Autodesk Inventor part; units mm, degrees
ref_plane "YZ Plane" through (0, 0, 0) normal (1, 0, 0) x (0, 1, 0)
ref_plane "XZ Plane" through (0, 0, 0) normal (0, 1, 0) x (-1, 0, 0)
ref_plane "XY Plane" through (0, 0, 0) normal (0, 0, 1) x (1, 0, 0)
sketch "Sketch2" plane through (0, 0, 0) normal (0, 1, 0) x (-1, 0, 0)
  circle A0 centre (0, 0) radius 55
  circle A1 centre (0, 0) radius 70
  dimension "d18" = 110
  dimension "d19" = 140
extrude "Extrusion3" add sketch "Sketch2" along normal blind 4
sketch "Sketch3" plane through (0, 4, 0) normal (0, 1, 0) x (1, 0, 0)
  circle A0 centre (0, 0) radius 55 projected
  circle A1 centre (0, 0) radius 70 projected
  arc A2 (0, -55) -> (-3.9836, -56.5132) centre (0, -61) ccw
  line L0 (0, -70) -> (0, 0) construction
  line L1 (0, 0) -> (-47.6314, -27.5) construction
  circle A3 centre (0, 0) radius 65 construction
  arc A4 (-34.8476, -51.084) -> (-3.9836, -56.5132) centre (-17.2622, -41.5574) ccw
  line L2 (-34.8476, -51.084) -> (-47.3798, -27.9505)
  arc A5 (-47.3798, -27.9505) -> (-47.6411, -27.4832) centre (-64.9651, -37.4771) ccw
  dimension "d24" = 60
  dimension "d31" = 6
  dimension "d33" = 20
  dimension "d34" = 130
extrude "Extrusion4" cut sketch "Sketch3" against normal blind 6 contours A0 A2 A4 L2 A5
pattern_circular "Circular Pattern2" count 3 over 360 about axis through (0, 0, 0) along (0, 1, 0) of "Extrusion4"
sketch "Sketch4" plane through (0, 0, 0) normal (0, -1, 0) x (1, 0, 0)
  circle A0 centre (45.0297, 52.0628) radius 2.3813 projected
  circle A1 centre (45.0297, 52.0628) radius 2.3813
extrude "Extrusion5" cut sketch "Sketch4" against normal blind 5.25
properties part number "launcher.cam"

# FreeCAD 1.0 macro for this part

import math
import FreeCAD as App
import Part
import Sketcher

doc = App.newDocument("Part")
body = doc.addObject("PartDesign::Body", "Body")

# Sketch on XZ plane
sketch1 = doc.addObject("Sketcher::SketchObject", "Sketch")
body.addObject(sketch1)
sketch1.AttachmentSupport = (doc.XZ_Plane, [""])
sketch1.MapMode = "FlatFace"
sketch1.addGeometry(Part.Circle(App.Vector(0, 0, 0), App.Vector(0, 0, 1), 70), False)
sketch1.addGeometry(Part.Circle(App.Vector(0, 0, 0), App.Vector(0, 0, 1), 55), False)
sketch1.addConstraint(Sketcher.Constraint("Coincident", 0, 3, -1, 1))
sketch1.addConstraint(Sketcher.Constraint("Coincident", 1, 3, -1, 1))
sketch1.addConstraint(Sketcher.Constraint("Diameter", 0, 140.0))
sketch1.addConstraint(Sketcher.Constraint("Diameter", 1, 110.0))
pad1 = doc.addObject("PartDesign::Pad", "Pad")
body.addObject(pad1)
pad1.Profile = sketch1
pad1.Length = 4
pad1.Reversed = True

# Sketch on XZ plane
sketch2 = doc.addObject("Sketcher::SketchObject", "Sketch001")
body.addObject(sketch2)
sketch2.AttachmentSupport = (doc.XZ_Plane, [""])
sketch2.MapMode = "FlatFace"
sketch2.AttachmentOffset = App.Placement(App.Vector(0, 0, -4), App.Rotation())
sketch2.addGeometry(Part.ArcOfCircle(Part.Circle(App.Vector(0, 0, 0), App.Vector(0, 0, 1), 55), math.radians(90), math.radians(150)), False)
sketch2.addGeometry(Part.ArcOfCircle(Part.Circle(App.Vector(-65, 37.5, 0), App.Vector(0, 0, 1), 20), math.radians(-29.98), math.radians(-28.45)), False)
sketch2.addGeometry(Part.LineSegment(App.Vector(-47.4, 28, 0), App.Vector(-34.8, 51.1, 0)), False)
sketch2.addGeometry(Part.ArcOfCircle(Part.Circle(App.Vector(-17.3, 41.6, 0), App.Vector(0, 0, 1), 20), math.radians(48), math.radians(152)), False)
sketch2.addGeometry(Part.ArcOfCircle(Part.Circle(App.Vector(0, 61, 0), App.Vector(0, 0, 1), 6), math.radians(-132), math.radians(-90)), False)
sketch2.addConstraint(Sketcher.Constraint("Tangent", 0, 2, 1, 1))
sketch2.addConstraint(Sketcher.Constraint("Tangent", 1, 2, 2, 1))
sketch2.addConstraint(Sketcher.Constraint("Tangent", 2, 2, 3, 2))
sketch2.addConstraint(Sketcher.Constraint("Tangent", 3, 1, 4, 1))
sketch2.addConstraint(Sketcher.Constraint("Tangent", 4, 2, 0, 1))
sketch2.addConstraint(Sketcher.Constraint("Coincident", 0, 3, -1, 1))
sketch2.addConstraint(Sketcher.Constraint("PointOnObject", 4, 3, -2))
sketch2.addConstraint(Sketcher.Constraint("Radius", 3, 20.0))
sketch2.addConstraint(Sketcher.Constraint("Radius", 4, 6.0))
sketch2.addConstraint(Sketcher.Constraint("Radius", 0, 55.0))
sketch2.addConstraint(Sketcher.Constraint("Radius", 1, 20.018))
sketch2.addConstraint(Sketcher.Constraint("Distance", 2, 26.31))
sketch2.addConstraint(Sketcher.Constraint("DistanceY", 0, 2, 3, 1, 29.03))
pocket1 = doc.addObject("PartDesign::Pocket", "Pocket")
body.addObject(pocket1)
pocket1.Profile = sketch2
pocket1.Length = 6
pocket1.Reversed = True
doc.recompute()

polarpattern = doc.addObject("PartDesign::PolarPattern", "PolarPattern")
body.addObject(polarpattern)
polarpattern.Originals = [pocket1]
polarpattern.Axis = (doc.Y_Axis, [""])
polarpattern.Angle = 360
polarpattern.Occurrences = 3
body.Tip = polarpattern

# Sketch on XZ plane
sketch3 = doc.addObject("Sketcher::SketchObject", "Sketch002")
body.addObject(sketch3)
sketch3.AttachmentSupport = (doc.XZ_Plane, [""])
sketch3.MapMode = "FlatFace"
sketch3.addGeometry(Part.Circle(App.Vector(45, 52.1, 0), App.Vector(0, 0, 1), 2.4), False)
sketch3.addConstraint(Sketcher.Constraint("Diameter", 0, 4.7626))
sketch3.addConstraint(Sketcher.Constraint("DistanceX", -1, 1, 0, 3, 45.0297))
sketch3.addConstraint(Sketcher.Constraint("DistanceY", -1, 1, 0, 3, 52.0628))
pocket2 = doc.addObject("PartDesign::Pocket", "Pocket001")
body.addObject(pocket2)
pocket2.Profile = sketch3
pocket2.Length = 5.25

doc.recompute()
